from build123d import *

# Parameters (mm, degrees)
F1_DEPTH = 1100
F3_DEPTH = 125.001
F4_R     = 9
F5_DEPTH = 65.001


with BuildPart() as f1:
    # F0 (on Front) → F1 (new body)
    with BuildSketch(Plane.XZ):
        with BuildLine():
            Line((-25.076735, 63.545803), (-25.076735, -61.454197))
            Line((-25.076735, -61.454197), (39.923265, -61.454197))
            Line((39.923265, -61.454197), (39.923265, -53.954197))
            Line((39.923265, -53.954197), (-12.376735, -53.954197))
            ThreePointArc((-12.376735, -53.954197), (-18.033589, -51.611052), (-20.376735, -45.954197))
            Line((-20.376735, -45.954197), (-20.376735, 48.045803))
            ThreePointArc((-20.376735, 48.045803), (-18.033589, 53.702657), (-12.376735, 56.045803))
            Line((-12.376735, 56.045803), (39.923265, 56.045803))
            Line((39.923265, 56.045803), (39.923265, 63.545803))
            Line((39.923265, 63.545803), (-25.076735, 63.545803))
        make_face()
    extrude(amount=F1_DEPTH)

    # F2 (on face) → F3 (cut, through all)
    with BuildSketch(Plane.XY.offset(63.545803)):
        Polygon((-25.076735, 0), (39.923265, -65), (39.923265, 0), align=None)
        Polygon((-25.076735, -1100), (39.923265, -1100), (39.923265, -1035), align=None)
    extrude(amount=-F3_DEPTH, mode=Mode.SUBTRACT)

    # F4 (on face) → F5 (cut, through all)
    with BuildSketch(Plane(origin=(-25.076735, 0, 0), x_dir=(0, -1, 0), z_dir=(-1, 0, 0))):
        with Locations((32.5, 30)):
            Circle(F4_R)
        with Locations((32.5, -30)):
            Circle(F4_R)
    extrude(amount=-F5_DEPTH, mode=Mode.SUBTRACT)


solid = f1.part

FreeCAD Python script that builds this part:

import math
import FreeCAD as App
import Part
import Sketcher
Q = App.Units.Quantity

doc = App.newDocument("Part")
body = doc.addObject("PartDesign::Body", "Body")

# Sketch on XZ plane
sketch1 = body.newObject("Sketcher::SketchObject", "Sketch")
sketch1.AttachmentSupport = (doc.getObject("XZ_Plane"), [""])
sketch1.MapMode = "FlatFace"
sketch1.addGeometry(Part.LineSegment(App.Vector(-25.076735, 63.545803, 0), App.Vector(-25.076735, -61.454197, 0)), False)
sketch1.addGeometry(Part.LineSegment(App.Vector(-25.076735, -61.454197, 0), App.Vector(39.923265, -61.454197, 0)), False)
sketch1.addGeometry(Part.LineSegment(App.Vector(39.923265, -61.454197, 0), App.Vector(39.923265, -53.954197, 0)), False)
sketch1.addGeometry(Part.LineSegment(App.Vector(39.923265, -53.954197, 0), App.Vector(-12.376735, -53.954197, 0)), False)
sketch1.addGeometry(Part.ArcOfCircle(Part.Circle(App.Vector(-12.376736, -45.954198, 0), App.Vector(0, 0, 1), 7.999999), math.radians(179.999994), math.radians(270.000006)), False)
sketch1.addGeometry(Part.LineSegment(App.Vector(-20.376735, -45.954197, 0), App.Vector(-20.376735, 48.045803, 0)), False)
sketch1.addGeometry(Part.ArcOfCircle(Part.Circle(App.Vector(-12.376734, 48.045802, 0), App.Vector(0, 0, 1), 8.000001), math.radians(90.000006), math.radians(179.999994)), False)
sketch1.addGeometry(Part.LineSegment(App.Vector(-12.376735, 56.045803, 0), App.Vector(39.923265, 56.045803, 0)), False)
sketch1.addGeometry(Part.LineSegment(App.Vector(39.923265, 56.045803, 0), App.Vector(39.923265, 63.545803, 0)), False)
sketch1.addGeometry(Part.LineSegment(App.Vector(39.923265, 63.545803, 0), App.Vector(-25.076735, 63.545803, 0)), False)
sketch1.addConstraint(Sketcher.Constraint("Coincident", 0, 2, 1, 1))
sketch1.addConstraint(Sketcher.Constraint("Coincident", 1, 2, 2, 1))
sketch1.addConstraint(Sketcher.Constraint("Coincident", 2, 2, 3, 1))
sketch1.addConstraint(Sketcher.Constraint("Tangent", 3, 2, 4, 2))
sketch1.addConstraint(Sketcher.Constraint("Tangent", 4, 1, 5, 1))
sketch1.addConstraint(Sketcher.Constraint("Tangent", 5, 2, 6, 2))
sketch1.addConstraint(Sketcher.Constraint("Tangent", 6, 1, 7, 1))
sketch1.addConstraint(Sketcher.Constraint("Coincident", 7, 2, 8, 1))
sketch1.addConstraint(Sketcher.Constraint("Coincident", 8, 2, 9, 1))
sketch1.addConstraint(Sketcher.Constraint("Coincident", 9, 2, 0, 1))
sketch1.addConstraint(Sketcher.Constraint("Vertical", 0))
sketch1.addConstraint(Sketcher.Constraint("Horizontal", 1))
sketch1.addConstraint(Sketcher.Constraint("Vertical", 2))
sketch1.addConstraint(Sketcher.Constraint("Horizontal", 3))
sketch1.addConstraint(Sketcher.Constraint("Vertical", 5))
sketch1.addConstraint(Sketcher.Constraint("Horizontal", 7))
sketch1.addConstraint(Sketcher.Constraint("Vertical", 8))
sketch1.addConstraint(Sketcher.Constraint("Horizontal", 9))
sketch1.addConstraint(Sketcher.Constraint("Equal", 4, 6))
sketch1.addConstraint(Sketcher.Constraint("Vertical", 2, 2, 7, 2))
sketch1.addConstraint(Sketcher.Constraint("Equal", 2, 8))
sketch1.addConstraint(Sketcher.Constraint("Radius", 4, Q("7.999999 mm")))
sketch1.addConstraint(Sketcher.Constraint("DistanceX", 1, 1, 1, 2, Q("65 mm")))
sketch1.addConstraint(Sketcher.Constraint("DistanceY", 0, 2, 0, 1, Q("125 mm")))
sketch1.addConstraint(Sketcher.Constraint("DistanceY", 5, 1, 5, 2, Q("94 mm")))
sketch1.addConstraint(Sketcher.Constraint("DistanceX", 3, 2, 3, 1, Q("52.3 mm")))
sketch1.addConstraint(Sketcher.Constraint("DistanceX", 4, 3, -1, 1, Q("12.376736 mm")))
sketch1.addConstraint(Sketcher.Constraint("DistanceY", 4, 3, -1, 1, Q("45.954198 mm")))
pad1 = body.newObject("PartDesign::Pad", "Pad")
pad1.Profile = sketch1
pad1.Length = 1100

# Sketch on XY plane
sketch2 = body.newObject("Sketcher::SketchObject", "Sketch001")
sketch2.AttachmentSupport = (doc.getObject("XY_Plane"), [""])
sketch2.MapMode = "FlatFace"
sketch2.AttachmentOffset = App.Placement(App.Vector(0, 0, 63.545803), App.Rotation())
sketch2.addGeometry(Part.LineSegment(App.Vector(-25.076735, 0, 0), App.Vector(39.923265, -65, 0)), False)
sketch2.addGeometry(Part.LineSegment(App.Vector(39.923265, -65, 0), App.Vector(39.923265, 0, 0)), False)
sketch2.addGeometry(Part.LineSegment(App.Vector(39.923265, 0, 0), App.Vector(-25.076735, 0, 0)), False)
sketch2.addGeometry(Part.LineSegment(App.Vector(-25.076735, -1100, 0), App.Vector(39.923265, -1100, 0)), False)
sketch2.addGeometry(Part.LineSegment(App.Vector(39.923265, -1100, 0), App.Vector(39.923265, -1035, 0)), False)
sketch2.addGeometry(Part.LineSegment(App.Vector(39.923265, -1035, 0), App.Vector(-25.076735, -1100, 0)), False)
sketch2.addConstraint(Sketcher.Constraint("Coincident", 0, 2, 1, 1))
sketch2.addConstraint(Sketcher.Constraint("Coincident", 1, 2, 2, 1))
sketch2.addConstraint(Sketcher.Constraint("Coincident", 2, 2, 0, 1))
sketch2.addConstraint(Sketcher.Constraint("Coincident", 3, 2, 4, 1))
sketch2.addConstraint(Sketcher.Constraint("Coincident", 4, 2, 5, 1))
sketch2.addConstraint(Sketcher.Constraint("Coincident", 5, 2, 3, 1))
sketch2.addConstraint(Sketcher.Constraint("Vertical", 1))
sketch2.addConstraint(Sketcher.Constraint("Horizontal", 2))
sketch2.addConstraint(Sketcher.Constraint("Horizontal", 3))
sketch2.addConstraint(Sketcher.Constraint("Vertical", 4))
sketch2.addConstraint(Sketcher.Constraint("PointOnObject", 1, 2, -1))
sketch2.addConstraint(Sketcher.Constraint("Perpendicular", 0, 5))
sketch2.addConstraint(Sketcher.Constraint("Vertical", 1, 2, 3, 2))
sketch2.addConstraint(Sketcher.Constraint("Vertical", 2, 2, 5, 2))
sketch2.addConstraint(Sketcher.Constraint("Equal", 3, 1))
sketch2.addConstraint(Sketcher.Constraint("DistanceX", 2, 2, 2, 1, Q("65 mm")))
sketch2.addConstraint(Sketcher.Constraint("DistanceY", 3, 2, -1, 1, Q("1100 mm")))
sketch2.addConstraint(Sketcher.Constraint("DistanceX", -1, 1, 0, 2, Q("39.923265 mm")))
pocket1 = body.newObject("PartDesign::Pocket", "Pocket")
pocket1.Profile = sketch2
pocket1.Type = "ThroughAll"

# Sketch on YZ plane
sketch3 = body.newObject("Sketcher::SketchObject", "Sketch002")
sketch3.AttachmentSupport = (doc.getObject("YZ_Plane"), [""])
sketch3.MapMode = "FlatFace"
sketch3.AttachmentOffset = App.Placement(App.Vector(0, 0, -25.076735), App.Rotation())
sketch3.addGeometry(Part.Circle(App.Vector(-32.5, 30, 0), App.Vector(0, 0, 1), 9), False)
sketch3.addGeometry(Part.Circle(App.Vector(-32.5, -30, 0), App.Vector(0, 0, 1), 9), False)
sketch3.addConstraint(Sketcher.Constraint("Equal", 0, 1))
sketch3.addConstraint(Sketcher.Constraint("Symmetric", 0, 3, 1, 3, -1))
sketch3.addConstraint(Sketcher.Constraint("Diameter", 0, Q("18 mm")))
sketch3.addConstraint(Sketcher.Constraint("DistanceY", -1, 1, 0, 3, Q("30 mm")))
sketch3.addConstraint(Sketcher.Constraint("DistanceX", 0, 3, -1, 1, Q("32.5 mm")))
pocket2 = body.newObject("PartDesign::Pocket", "Pocket001")
pocket2.Profile = sketch3
pocket2.Type = "ThroughAll"
pocket2.Reversed = True

doc.recompute()
